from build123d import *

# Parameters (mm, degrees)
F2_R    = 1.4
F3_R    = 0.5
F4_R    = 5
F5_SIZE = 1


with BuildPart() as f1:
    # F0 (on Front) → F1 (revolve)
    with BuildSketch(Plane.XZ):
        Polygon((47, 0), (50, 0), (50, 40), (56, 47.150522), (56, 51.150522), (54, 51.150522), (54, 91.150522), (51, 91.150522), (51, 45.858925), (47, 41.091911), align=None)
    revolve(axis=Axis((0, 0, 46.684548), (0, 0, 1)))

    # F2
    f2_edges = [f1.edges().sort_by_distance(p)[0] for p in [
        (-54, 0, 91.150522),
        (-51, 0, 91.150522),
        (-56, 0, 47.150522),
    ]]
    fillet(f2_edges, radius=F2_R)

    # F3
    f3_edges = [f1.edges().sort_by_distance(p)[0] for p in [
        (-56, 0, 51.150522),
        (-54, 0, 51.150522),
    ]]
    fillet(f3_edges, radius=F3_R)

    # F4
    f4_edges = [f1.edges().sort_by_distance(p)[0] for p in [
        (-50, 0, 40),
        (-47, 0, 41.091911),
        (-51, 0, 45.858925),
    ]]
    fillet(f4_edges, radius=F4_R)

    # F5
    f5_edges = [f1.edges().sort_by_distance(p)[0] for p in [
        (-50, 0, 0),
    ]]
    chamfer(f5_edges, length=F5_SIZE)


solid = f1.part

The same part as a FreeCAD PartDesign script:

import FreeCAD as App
import Part
import Sketcher
from FreeCAD import Vector
Q = App.Units.Quantity


def edges_at(feature, points):
    """Names of the edges that pass closest to the given points."""
    edges = feature.Shape.Edges
    near = lambda p: min(range(len(edges)), key=lambda i: edges[i].distToShape(Part.Vertex(*p))[0])
    return sorted({f"Edge{near(p) + 1}" for p in points})


def add_polygon(sketch, points):
    """Adds a closed chain of lines whose ends are joined by coincident constraints."""
    first, n = sketch.GeometryCount, len(points)
    for a, b in zip(points, points[1:] + points[:1]):
        sketch.addGeometry(Part.LineSegment(App.Vector(*a, 0), App.Vector(*b, 0)), False)
    for i in range(n):
        sketch.addConstraint(Sketcher.Constraint("Coincident", first + i, 2, first + (i + 1) % n, 1))

doc = App.newDocument("Part")
body = doc.addObject("PartDesign::Body", "Body")

# Sketch on XZ plane
sketch1 = body.newObject("Sketcher::SketchObject", "Sketch")
sketch1.AttachmentSupport = (doc.getObject("XZ_Plane"), [""])
sketch1.MapMode = "FlatFace"
add_polygon(sketch1, [(47, 0), (50, 0), (50, 40), (56, 47.150522), (56, 51.150522), (54, 51.150522), (54, 91.150522), (51, 91.150522), (51, 45.858925), (47, 41.091911)])  # lines 0-9
sketch1.addConstraint([
    Sketcher.Constraint("Horizontal", 0),
    Sketcher.Constraint("Vertical", 1),
    Sketcher.Constraint("Vertical", 3),
    Sketcher.Constraint("Horizontal", 4),
    Sketcher.Constraint("Vertical", 5),
    Sketcher.Constraint("Horizontal", 6),
    Sketcher.Constraint("Vertical", 7),
    Sketcher.Constraint("Vertical", 9),
    Sketcher.Constraint("PointOnObject", 0, 2, -1),
    Sketcher.Constraint("Parallel", 2, 8),
    Sketcher.Constraint("Equal", 0, 6),
    Sketcher.Constraint("Equal", 1, 5),
    Sketcher.Constraint("DistanceX", 0, 1, 0, 2, 3.0),
    Sketcher.Constraint("DistanceX", 4, 2, 4, 1, 2.0),
    Sketcher.Constraint("DistanceY", 1, 1, 1, 2, 40.0),
    Sketcher.Constraint("DistanceY", 3, 1, 3, 2, 4.0),
    Sketcher.Constraint("Angle", 2, Q("50.000002 deg")),
    Sketcher.Constraint("DistanceX", -1, 1, 0, 2, 50.0),
    Sketcher.Constraint("DistanceX", -1, 1, 2, 2, 56.0),
    Sketcher.Constraint("DistanceY", 9, 2, 9, 1, 41.091911),
])
revolution = body.newObject("PartDesign::Revolution", "Revolution")
revolution.Profile = sketch1
revolution.ReferenceAxis = (sketch1, ["V_Axis"])
revolution.Angle = 360
doc.recompute()

fillet = body.newObject("PartDesign::Fillet", "Fillet")
fillet.Base = (revolution, edges_at(revolution, [(-54, 0, 91.151), (-51, 0, 91.151), (-56, 0, 47.151)]))
fillet.Radius = 1.4
doc.recompute()

fillet2 = body.newObject("PartDesign::Fillet", "Fillet001")
fillet2.Base = (fillet, edges_at(fillet, [(-56, 0, 51.151), (-54, 0, 51.151)]))
fillet2.Radius = 0.5
doc.recompute()

fillet3 = body.newObject("PartDesign::Fillet", "Fillet002")
fillet3.Base = (fillet2, edges_at(fillet2, [(-50, 0, 40), (-47, 0, 41.092), (-51, 0, 45.859)]))
fillet3.Radius = 5
doc.recompute()

chamfer = body.newObject("PartDesign::Chamfer", "Chamfer")
chamfer.Base = (fillet3, edges_at(fillet3, [(-50, 0, 0)]))
chamfer.Size = 1

doc.recompute()
